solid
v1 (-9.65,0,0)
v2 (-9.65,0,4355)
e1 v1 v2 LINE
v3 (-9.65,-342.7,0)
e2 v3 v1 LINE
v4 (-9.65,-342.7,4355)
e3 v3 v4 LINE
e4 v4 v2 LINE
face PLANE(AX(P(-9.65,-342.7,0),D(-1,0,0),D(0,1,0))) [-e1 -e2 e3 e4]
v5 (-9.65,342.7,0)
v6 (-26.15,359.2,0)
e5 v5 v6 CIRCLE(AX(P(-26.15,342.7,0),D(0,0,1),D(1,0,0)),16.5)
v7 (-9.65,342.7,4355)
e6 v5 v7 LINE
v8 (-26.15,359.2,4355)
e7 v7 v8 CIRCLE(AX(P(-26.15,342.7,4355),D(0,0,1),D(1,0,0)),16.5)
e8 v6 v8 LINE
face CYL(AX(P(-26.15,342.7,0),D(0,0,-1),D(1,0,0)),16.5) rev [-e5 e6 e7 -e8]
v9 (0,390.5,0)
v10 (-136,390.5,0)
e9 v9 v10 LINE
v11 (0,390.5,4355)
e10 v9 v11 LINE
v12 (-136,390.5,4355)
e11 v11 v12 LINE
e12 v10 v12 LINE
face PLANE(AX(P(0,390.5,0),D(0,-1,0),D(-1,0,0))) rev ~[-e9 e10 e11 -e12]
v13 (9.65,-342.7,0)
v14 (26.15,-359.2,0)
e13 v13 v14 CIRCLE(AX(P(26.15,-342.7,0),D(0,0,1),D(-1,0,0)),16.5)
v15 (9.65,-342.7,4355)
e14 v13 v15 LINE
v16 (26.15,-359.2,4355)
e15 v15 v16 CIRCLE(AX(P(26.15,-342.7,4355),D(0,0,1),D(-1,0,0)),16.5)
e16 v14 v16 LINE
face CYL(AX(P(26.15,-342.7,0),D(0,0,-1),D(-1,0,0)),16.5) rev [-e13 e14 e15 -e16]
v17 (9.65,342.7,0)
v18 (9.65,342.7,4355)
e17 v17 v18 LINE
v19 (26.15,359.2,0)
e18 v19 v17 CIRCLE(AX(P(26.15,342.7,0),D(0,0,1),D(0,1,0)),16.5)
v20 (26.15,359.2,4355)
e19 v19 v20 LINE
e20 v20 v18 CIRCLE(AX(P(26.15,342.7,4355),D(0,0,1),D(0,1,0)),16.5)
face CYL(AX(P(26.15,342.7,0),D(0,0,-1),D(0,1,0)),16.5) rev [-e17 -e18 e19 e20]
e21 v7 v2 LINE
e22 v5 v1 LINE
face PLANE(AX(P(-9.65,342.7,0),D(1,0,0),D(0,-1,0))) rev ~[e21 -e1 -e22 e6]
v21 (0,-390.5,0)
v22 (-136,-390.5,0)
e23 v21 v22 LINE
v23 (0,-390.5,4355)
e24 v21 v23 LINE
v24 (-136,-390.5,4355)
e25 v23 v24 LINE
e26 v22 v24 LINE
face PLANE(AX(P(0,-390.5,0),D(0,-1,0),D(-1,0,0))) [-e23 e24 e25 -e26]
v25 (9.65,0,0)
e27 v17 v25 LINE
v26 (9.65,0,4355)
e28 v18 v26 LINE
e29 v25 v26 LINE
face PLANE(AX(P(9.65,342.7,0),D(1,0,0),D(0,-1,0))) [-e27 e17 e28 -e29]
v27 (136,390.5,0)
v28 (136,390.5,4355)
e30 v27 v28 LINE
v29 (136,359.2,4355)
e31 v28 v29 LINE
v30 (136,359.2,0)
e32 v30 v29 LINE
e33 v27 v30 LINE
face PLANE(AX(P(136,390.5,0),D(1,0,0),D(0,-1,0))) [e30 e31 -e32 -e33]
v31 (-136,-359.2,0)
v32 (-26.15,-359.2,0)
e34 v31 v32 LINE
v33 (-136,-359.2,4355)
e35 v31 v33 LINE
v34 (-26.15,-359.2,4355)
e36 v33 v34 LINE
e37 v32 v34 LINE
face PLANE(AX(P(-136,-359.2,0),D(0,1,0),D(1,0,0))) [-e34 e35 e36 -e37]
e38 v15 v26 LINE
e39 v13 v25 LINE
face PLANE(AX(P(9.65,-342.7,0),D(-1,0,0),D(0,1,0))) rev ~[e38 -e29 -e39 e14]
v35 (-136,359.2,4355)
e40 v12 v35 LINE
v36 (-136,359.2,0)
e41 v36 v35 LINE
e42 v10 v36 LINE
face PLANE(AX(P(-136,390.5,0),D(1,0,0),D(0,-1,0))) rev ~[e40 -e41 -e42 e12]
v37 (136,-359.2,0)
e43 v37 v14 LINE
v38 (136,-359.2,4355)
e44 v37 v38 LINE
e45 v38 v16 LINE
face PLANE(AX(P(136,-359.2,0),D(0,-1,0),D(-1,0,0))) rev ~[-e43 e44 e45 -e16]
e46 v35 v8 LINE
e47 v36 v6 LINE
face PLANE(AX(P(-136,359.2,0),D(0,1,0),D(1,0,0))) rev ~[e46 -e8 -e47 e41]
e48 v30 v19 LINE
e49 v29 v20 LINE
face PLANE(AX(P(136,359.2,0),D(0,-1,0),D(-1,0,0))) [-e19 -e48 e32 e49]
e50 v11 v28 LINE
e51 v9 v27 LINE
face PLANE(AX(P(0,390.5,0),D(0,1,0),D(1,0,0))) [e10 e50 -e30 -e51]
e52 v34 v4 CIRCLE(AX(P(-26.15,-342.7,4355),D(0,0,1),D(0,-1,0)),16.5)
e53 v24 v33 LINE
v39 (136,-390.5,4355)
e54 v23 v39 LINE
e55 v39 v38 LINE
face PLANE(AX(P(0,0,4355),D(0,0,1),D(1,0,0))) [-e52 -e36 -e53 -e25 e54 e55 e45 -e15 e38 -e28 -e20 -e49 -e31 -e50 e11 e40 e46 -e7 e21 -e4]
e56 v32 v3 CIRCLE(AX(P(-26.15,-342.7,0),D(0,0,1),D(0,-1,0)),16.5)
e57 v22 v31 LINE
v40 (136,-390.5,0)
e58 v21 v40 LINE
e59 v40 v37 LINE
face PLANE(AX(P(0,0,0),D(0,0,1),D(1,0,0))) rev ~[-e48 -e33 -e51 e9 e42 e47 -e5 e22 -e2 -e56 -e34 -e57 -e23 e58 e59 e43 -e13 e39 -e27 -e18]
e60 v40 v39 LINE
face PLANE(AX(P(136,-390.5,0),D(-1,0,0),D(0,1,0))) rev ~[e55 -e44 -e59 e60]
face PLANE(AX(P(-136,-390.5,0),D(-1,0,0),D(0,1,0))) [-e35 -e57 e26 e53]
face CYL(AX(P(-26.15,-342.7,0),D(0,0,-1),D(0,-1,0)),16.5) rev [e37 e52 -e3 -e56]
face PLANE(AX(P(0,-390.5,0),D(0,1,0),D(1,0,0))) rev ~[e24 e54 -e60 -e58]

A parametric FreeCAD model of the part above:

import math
import FreeCAD as App
import Part
import Sketcher

V = App.Vector
Q = App.Units.Quantity

doc = App.newDocument("Part")
params = doc.addObject("Spreadsheet::Sheet", "Params")
for row, (alias, value) in enumerate([
    ("sketch1_radius", "16.5 mm"),
    ("sketch1_height", "31.3 mm"),
    ("pad1_length", "4355 mm"),
], start=1):
    params.set(f"A{row}", alias)
    params.set(f"B{row}", "=" + value)
    params.setAlias(f"B{row}", alias)

body = doc.addObject("PartDesign::Body", "Body")

sketch1 = body.newObject("Sketcher::SketchObject", "Sketch")
sketch1.AttachmentSupport = (doc.getObject("XY_Plane"), [""])
sketch1.MapMode = "FlatFace"
sketch1.addGeometry([
    Part.LineSegment(V(-136, -359, 0), V(-136, -390, 0)),
    Part.LineSegment(V(-136, -390, 0), V(136, -390, 0)),
    Part.LineSegment(V(136, -390, 0), V(136, -359, 0)),
    Part.LineSegment(V(136, -359, 0), V(26, -359, 0)),
    Part.ArcOfCircle(Part.Circle(V(26, -343, 0), V(0, 0, 1), 16), math.radians(180), math.radians(270)),
    Part.LineSegment(V(10, -343, 0), V(10, 343, 0)),
    Part.ArcOfCircle(Part.Circle(V(26, 343, 0), V(0, 0, 1), 16), math.radians(90), math.radians(180)),
    Part.LineSegment(V(26, 359, 0), V(136, 359, 0)),
    Part.LineSegment(V(136, 359, 0), V(136, 390, 0)),
    Part.LineSegment(V(136, 390, 0), V(-136, 390, 0)),
    Part.LineSegment(V(-136, 390, 0), V(-136, 359, 0)),
    Part.LineSegment(V(-136, 359, 0), V(-26, 359, 0)),
    Part.ArcOfCircle(Part.Circle(V(-26, 343, 0), V(0, 0, 1), 16), math.radians(0), math.radians(90)),
    Part.LineSegment(V(-10, 343, 0), V(-10, -343, 0)),
    Part.ArcOfCircle(Part.Circle(V(-26, -343, 0), V(0, 0, 1), 16), math.radians(-90), math.radians(0)),
    Part.LineSegment(V(-26, -359, 0), V(-136, -359, 0)),
], False)
sketch1.addConstraint([
    Sketcher.Constraint("Coincident", 0, 2, 1, 1),
    Sketcher.Constraint("Coincident", 1, 2, 2, 1),
    Sketcher.Constraint("Coincident", 2, 2, 3, 1),
    Sketcher.Constraint("Tangent", 3, 2, 4, 2),
    Sketcher.Constraint("Tangent", 4, 1, 5, 1),
    Sketcher.Constraint("Tangent", 5, 2, 6, 2),
    Sketcher.Constraint("Tangent", 6, 1, 7, 1),
    Sketcher.Constraint("Coincident", 7, 2, 8, 1),
    Sketcher.Constraint("Coincident", 8, 2, 9, 1),
    Sketcher.Constraint("Coincident", 9, 2, 10, 1),
    Sketcher.Constraint("Coincident", 10, 2, 11, 1),
    Sketcher.Constraint("Tangent", 11, 2, 12, 2),
    Sketcher.Constraint("Tangent", 12, 1, 13, 1),
    Sketcher.Constraint("Tangent", 13, 2, 14, 2),
    Sketcher.Constraint("Tangent", 14, 1, 15, 1),
    Sketcher.Constraint("Coincident", 15, 2, 0, 1),
    Sketcher.Constraint("Vertical", 0),
    Sketcher.Constraint("Horizontal", 1),
    Sketcher.Constraint("Vertical", 2),
    Sketcher.Constraint("Horizontal", 3),
    Sketcher.Constraint("Vertical", 5),
    Sketcher.Constraint("Horizontal", 7),
    Sketcher.Constraint("Vertical", 8),
    Sketcher.Constraint("Horizontal", 9),
    Sketcher.Constraint("Vertical", 10),
    Sketcher.Constraint("Horizontal", 11),
    Sketcher.Constraint("Vertical", 13),
    Sketcher.Constraint("Horizontal", 15),
    Sketcher.Constraint("Equal", 4, 6),
    Sketcher.Constraint("Equal", 6, 12),
    Sketcher.Constraint("Equal", 12, 14),
    Sketcher.Constraint("Symmetric", 4, 3, 12, 3, -1, 1),
    Sketcher.Constraint("Symmetric", 0, 2, 8, 2, -1, 1),
    Sketcher.Constraint("Symmetric", 7, 2, 10, 2, -2),
    Sketcher.Constraint("Symmetric", 2, 2, 15, 2, -2),
    Sketcher.Constraint("Radius", 4, Q("16.5 mm")),
    Sketcher.Constraint("DistanceY", 0, 2, 0, 1, Q("31.3 mm")),
    Sketcher.Constraint("DistanceX", 0, 2, -1, 1, Q("136 mm")),
    Sketcher.Constraint("DistanceY", 0, 2, -1, 1, Q("390.5 mm")),
    Sketcher.Constraint("DistanceX", -1, 1, 4, 1, Q("9.65 mm")),
])
sketch1.setExpression("Constraints[35]", "Params.sketch1_radius")
sketch1.setExpression("Constraints[36]", "Params.sketch1_height")
pad1 = body.newObject("PartDesign::Pad", "Pad")
pad1.Profile = sketch1
pad1.setExpression("Length", "Params.pad1_length")

doc.recompute()
